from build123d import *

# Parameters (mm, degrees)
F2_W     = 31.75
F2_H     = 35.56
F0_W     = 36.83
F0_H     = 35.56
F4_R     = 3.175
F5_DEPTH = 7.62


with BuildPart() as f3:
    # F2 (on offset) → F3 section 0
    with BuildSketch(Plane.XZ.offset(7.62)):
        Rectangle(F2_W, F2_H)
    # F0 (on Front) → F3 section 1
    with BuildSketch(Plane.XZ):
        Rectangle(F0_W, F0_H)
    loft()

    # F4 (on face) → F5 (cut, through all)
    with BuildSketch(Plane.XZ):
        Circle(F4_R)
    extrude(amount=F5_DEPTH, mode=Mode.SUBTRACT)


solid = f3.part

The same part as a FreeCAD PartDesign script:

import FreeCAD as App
import Part
import Sketcher
from FreeCAD import Vector
Q = App.Units.Quantity


def add_polygon(sketch, points):
    """Adds a closed chain of lines whose ends are joined by coincident constraints."""
    first, n = sketch.GeometryCount, len(points)
    for a, b in zip(points, points[1:] + points[:1]):
        sketch.addGeometry(Part.LineSegment(App.Vector(*a, 0), App.Vector(*b, 0)), False)
    for i in range(n):
        sketch.addConstraint(Sketcher.Constraint("Coincident", first + i, 2, first + (i + 1) % n, 1))

doc = App.newDocument("Part")
body = doc.addObject("PartDesign::Body", "Body")

sketch1 = body.newObject("Sketcher::SketchObject", "Sketch")
sketch1.AttachmentSupport = (doc.getObject("XZ_Plane"), [""])
sketch1.MapMode = "FlatFace"
sketch1.AttachmentOffset = App.Placement(Vector(0, 0, 0.3 * 25.4), App.Rotation())
add_polygon(sketch1, [(-16, 18), (-16, -18), (16, -18), (16, 18)])
sketch1.addConstraint([
    Sketcher.Constraint("Vertical", 0),
    Sketcher.Constraint("Horizontal", 1),
    Sketcher.Constraint("Vertical", 2),
    Sketcher.Constraint("Horizontal", 3),
    Sketcher.Constraint("Symmetric", 0, 2, 2, 2, -1, 1),
    Sketcher.Constraint("DistanceY", 0, 2, 0, 1, Q("1.4 in")),
    Sketcher.Constraint("DistanceX", 1, 1, 1, 2, Q("1.25 in")),
])

sketch2 = body.newObject("Sketcher::SketchObject", "Sketch001")
sketch2.AttachmentSupport = (doc.getObject("XZ_Plane"), [""])
sketch2.MapMode = "FlatFace"
add_polygon(sketch2, [(-18, 18), (-18, -18), (18, -18), (18, 18)])
sketch2.addConstraint([
    Sketcher.Constraint("Vertical", 0),
    Sketcher.Constraint("Horizontal", 1),
    Sketcher.Constraint("Vertical", 2),
    Sketcher.Constraint("Horizontal", 3),
    Sketcher.Constraint("Symmetric", 0, 2, 2, 2, -1, 1),
    Sketcher.Constraint("DistanceY", 0, 2, 0, 1, Q("1.4 in")),
    Sketcher.Constraint("DistanceX", 1, 1, 1, 2, Q("1.45 in")),
])

additiveloft = body.newObject("PartDesign::AdditiveLoft", "AdditiveLoft")
additiveloft.Profile = sketch1
additiveloft.Sections = [sketch2]

sketch3 = body.newObject("Sketcher::SketchObject", "Sketch002")
sketch3.AttachmentSupport = (doc.getObject("XZ_Plane"), [""])
sketch3.MapMode = "FlatFace"
sketch3.addGeometry(Part.Circle(Vector(0, 0, 0), Vector(0, 0, 1), 3.2), False)
sketch3.addConstraint([
    Sketcher.Constraint("Coincident", 0, 3, -1, 1),
    Sketcher.Constraint("Diameter", 0, Q("0.25 in")),
])
pocket1 = body.newObject("PartDesign::Pocket", "Pocket")
pocket1.Profile = sketch3
pocket1.Type = "ThroughAll"
pocket1.Reversed = True

doc.recompute()
